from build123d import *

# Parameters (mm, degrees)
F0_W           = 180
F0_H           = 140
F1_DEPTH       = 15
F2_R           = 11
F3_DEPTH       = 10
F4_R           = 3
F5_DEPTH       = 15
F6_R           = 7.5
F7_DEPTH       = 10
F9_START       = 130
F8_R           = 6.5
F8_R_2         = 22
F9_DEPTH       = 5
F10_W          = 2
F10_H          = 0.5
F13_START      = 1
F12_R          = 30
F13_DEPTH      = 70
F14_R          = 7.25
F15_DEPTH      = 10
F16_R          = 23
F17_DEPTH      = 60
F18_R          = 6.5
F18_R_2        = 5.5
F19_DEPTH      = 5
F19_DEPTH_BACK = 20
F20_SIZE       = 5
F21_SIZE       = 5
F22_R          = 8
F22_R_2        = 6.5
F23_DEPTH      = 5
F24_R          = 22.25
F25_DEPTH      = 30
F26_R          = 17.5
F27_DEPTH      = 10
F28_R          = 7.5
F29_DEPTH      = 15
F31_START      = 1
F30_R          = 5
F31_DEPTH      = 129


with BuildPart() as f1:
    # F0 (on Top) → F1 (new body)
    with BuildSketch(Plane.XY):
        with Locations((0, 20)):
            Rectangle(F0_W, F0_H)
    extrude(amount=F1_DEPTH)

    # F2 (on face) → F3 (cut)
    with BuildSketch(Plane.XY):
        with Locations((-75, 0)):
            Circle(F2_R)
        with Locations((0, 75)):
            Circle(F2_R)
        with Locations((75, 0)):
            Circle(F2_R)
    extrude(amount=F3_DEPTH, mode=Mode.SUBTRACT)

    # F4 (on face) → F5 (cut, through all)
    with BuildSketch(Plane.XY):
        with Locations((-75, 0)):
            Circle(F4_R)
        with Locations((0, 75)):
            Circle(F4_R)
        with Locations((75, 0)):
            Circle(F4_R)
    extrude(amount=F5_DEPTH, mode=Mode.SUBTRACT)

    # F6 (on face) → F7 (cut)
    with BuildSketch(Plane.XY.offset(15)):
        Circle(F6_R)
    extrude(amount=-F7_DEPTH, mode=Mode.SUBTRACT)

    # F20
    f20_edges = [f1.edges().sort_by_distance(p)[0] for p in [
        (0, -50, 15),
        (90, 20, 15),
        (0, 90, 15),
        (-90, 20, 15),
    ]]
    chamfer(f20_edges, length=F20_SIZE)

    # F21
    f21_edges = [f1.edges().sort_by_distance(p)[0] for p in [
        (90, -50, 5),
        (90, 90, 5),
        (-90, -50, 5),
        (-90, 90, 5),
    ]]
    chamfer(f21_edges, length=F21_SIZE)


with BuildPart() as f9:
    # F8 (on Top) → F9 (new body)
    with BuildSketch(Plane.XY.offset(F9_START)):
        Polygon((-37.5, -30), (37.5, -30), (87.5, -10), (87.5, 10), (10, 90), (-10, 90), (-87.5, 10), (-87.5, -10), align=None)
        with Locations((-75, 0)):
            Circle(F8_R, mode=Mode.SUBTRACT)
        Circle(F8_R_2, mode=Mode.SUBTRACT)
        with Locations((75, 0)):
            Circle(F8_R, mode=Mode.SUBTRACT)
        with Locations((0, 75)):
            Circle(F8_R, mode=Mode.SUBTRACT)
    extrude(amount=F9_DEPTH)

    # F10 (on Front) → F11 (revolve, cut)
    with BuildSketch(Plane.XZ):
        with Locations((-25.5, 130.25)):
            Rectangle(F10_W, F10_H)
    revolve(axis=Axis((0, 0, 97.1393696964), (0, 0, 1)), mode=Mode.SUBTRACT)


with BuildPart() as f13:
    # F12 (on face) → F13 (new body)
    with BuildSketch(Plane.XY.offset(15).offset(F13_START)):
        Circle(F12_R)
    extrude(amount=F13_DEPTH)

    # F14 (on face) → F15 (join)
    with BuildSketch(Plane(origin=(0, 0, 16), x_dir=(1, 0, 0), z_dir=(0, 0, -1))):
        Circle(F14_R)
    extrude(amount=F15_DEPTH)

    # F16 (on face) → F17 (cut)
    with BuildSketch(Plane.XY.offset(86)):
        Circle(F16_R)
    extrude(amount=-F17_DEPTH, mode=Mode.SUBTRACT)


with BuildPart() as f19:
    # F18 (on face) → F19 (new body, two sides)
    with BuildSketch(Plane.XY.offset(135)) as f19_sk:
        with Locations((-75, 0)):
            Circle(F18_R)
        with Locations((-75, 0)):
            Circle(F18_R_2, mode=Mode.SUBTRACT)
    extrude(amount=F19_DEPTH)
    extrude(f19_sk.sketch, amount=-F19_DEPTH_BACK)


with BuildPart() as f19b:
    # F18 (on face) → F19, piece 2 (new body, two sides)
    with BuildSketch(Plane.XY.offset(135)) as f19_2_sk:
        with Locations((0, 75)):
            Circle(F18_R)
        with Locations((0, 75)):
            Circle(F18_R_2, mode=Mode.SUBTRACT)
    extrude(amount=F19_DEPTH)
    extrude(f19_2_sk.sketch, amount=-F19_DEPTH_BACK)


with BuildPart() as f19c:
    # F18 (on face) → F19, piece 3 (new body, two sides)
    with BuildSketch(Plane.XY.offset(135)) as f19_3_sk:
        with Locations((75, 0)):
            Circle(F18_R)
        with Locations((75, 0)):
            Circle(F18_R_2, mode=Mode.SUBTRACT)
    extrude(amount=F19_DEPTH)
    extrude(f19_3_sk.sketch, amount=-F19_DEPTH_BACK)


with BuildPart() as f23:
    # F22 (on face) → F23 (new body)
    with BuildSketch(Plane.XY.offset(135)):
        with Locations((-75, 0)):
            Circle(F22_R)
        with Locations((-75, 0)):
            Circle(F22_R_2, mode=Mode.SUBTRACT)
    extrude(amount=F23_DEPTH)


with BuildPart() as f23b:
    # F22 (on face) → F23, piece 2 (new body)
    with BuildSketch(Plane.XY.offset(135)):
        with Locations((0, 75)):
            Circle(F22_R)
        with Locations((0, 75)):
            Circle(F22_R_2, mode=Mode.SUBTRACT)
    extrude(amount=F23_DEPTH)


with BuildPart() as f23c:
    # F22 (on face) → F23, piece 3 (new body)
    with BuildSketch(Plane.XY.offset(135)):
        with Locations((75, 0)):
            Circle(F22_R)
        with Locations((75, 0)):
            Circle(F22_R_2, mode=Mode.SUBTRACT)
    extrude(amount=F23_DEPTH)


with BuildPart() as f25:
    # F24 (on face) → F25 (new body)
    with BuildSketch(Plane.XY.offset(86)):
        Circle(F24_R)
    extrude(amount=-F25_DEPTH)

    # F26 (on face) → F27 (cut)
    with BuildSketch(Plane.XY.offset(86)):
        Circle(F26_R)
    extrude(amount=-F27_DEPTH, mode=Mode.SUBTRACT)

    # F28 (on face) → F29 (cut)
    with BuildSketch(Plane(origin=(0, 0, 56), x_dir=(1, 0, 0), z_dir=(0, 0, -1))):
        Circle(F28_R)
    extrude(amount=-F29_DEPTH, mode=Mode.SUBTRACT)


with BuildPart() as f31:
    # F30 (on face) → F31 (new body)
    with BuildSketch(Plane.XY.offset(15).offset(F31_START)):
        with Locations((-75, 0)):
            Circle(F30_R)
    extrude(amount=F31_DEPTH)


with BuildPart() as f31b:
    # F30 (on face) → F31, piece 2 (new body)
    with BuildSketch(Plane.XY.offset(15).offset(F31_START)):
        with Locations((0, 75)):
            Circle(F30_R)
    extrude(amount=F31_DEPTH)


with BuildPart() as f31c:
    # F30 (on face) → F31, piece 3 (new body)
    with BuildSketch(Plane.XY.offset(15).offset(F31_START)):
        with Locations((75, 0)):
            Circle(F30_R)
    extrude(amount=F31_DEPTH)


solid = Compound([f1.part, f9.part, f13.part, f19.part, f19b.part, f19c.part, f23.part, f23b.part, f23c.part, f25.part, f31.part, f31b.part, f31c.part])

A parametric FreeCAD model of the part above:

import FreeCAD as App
import Part
import Sketcher

V = App.Vector


def edges_at(feature, points):
    """Names of the edges that pass closest to the given points."""
    edges = feature.Shape.Edges
    near = lambda p: min(range(len(edges)), key=lambda i: edges[i].distToShape(Part.Vertex(*p))[0])
    return sorted({f"Edge{near(p) + 1}" for p in points})


def add_polygon(sketch, points):
    """Adds a closed chain of lines whose ends are joined by coincident constraints."""
    first, n = sketch.GeometryCount, len(points)
    for a, b in zip(points, points[1:] + points[:1]):
        sketch.addGeometry(Part.LineSegment(App.Vector(*a, 0), App.Vector(*b, 0)), False)
    for i in range(n):
        sketch.addConstraint(Sketcher.Constraint("Coincident", first + i, 2, first + (i + 1) % n, 1))

doc = App.newDocument("Part")
body = doc.addObject("PartDesign::Body", "Body")

sketch1 = doc.addObject("Sketcher::SketchObject", "Sketch")
body.addObject(sketch1)
sketch1.AttachmentSupport = (doc.XY_Plane, [""])
sketch1.MapMode = "FlatFace"
add_polygon(sketch1, [(-90, 90), (-90, -50), (90, -50), (90, 90)])
sketch1.addConstraint([
    Sketcher.Constraint("Vertical", 0),
    Sketcher.Constraint("Horizontal", 1),
    Sketcher.Constraint("Vertical", 2),
    Sketcher.Constraint("Horizontal", 3),
    Sketcher.Constraint("DistanceX", 1, 1, 1, 2, 180.0),
    Sketcher.Constraint("DistanceY", 0, 2, 0, 1, 140.0),
    Sketcher.Constraint("DistanceX", 0, 2, -1, 1, 90.0),
    Sketcher.Constraint("DistanceY", 0, 2, -1, 1, 50.0),
])
pad1 = doc.addObject("PartDesign::Pad", "Pad")
body.addObject(pad1)
pad1.Profile = sketch1
pad1.Length = 15

sketch2 = doc.addObject("Sketcher::SketchObject", "Sketch001")
body.addObject(sketch2)
sketch2.AttachmentSupport = (doc.XY_Plane, [""])
sketch2.MapMode = "FlatFace"
sketch2.addGeometry([
    Part.Circle(V(-75, 0, 0), V(0, 0, 1), 11),
    Part.Circle(V(0, 75, 0), V(0, 0, 1), 11),
    Part.Circle(V(75, 0, 0), V(0, 0, 1), 11),
], False)
sketch2.addConstraint([
    Sketcher.Constraint("Equal", 0, 1),
    Sketcher.Constraint("Equal", 1, 2),
    Sketcher.Constraint("Symmetric", 0, 3, 2, 3, -1, 1),
    Sketcher.Constraint("PointOnObject", 0, 3, -1),
    Sketcher.Constraint("PointOnObject", 1, 3, -2),
    Sketcher.Constraint("Diameter", 0, 22.0),
    Sketcher.Constraint("DistanceX", 0, 3, -1, 1, 75.0),
    Sketcher.Constraint("DistanceY", -1, 1, 1, 3, 75.0),
])
pocket1 = doc.addObject("PartDesign::Pocket", "Pocket")
body.addObject(pocket1)
pocket1.Profile = sketch2
pocket1.Length = 10
pocket1.Reversed = True

sketch3 = doc.addObject("Sketcher::SketchObject", "Sketch002")
body.addObject(sketch3)
sketch3.AttachmentSupport = (doc.XY_Plane, [""])
sketch3.MapMode = "FlatFace"
sketch3.addGeometry([
    Part.Circle(V(-75, 0, 0), V(0, 0, 1), 3),
    Part.Circle(V(0, 75, 0), V(0, 0, 1), 3),
    Part.Circle(V(75, 0, 0), V(0, 0, 1), 3),
], False)
sketch3.addConstraint([
    Sketcher.Constraint("Equal", 0, 1),
    Sketcher.Constraint("Equal", 1, 2),
    Sketcher.Constraint("Symmetric", 0, 3, 2, 3, -1, 1),
    Sketcher.Constraint("PointOnObject", 0, 3, -1),
    Sketcher.Constraint("PointOnObject", 1, 3, -2),
    Sketcher.Constraint("Diameter", 0, 6.0),
    Sketcher.Constraint("DistanceX", 0, 3, -1, 1, 75.0),
    Sketcher.Constraint("DistanceY", -1, 1, 1, 3, 75.0),
])
pocket2 = doc.addObject("PartDesign::Pocket", "Pocket001")
body.addObject(pocket2)
pocket2.Profile = sketch3
pocket2.Type = "ThroughAll"
pocket2.Reversed = True

sketch4 = doc.addObject("Sketcher::SketchObject", "Sketch003")
body.addObject(sketch4)
sketch4.AttachmentSupport = (doc.XY_Plane, [""])
sketch4.MapMode = "FlatFace"
sketch4.AttachmentOffset = App.Placement(V(0, 0, 15), App.Rotation())
sketch4.addGeometry(Part.Circle(V(0, 0, 0), V(0, 0, 1), 7.5), False)
sketch4.addConstraint([
    Sketcher.Constraint("Coincident", 0, 3, -1, 1),
    Sketcher.Constraint("Diameter", 0, 15.0),
])
pocket3 = doc.addObject("PartDesign::Pocket", "Pocket002")
body.addObject(pocket3)
pocket3.Profile = sketch4
pocket3.Length = 10
doc.recompute()

chamfer = doc.addObject("PartDesign::Chamfer", "Chamfer")
body.addObject(chamfer)
chamfer.Base = (pocket3, edges_at(pocket3, [
    (0, -50, 15),
    (90, 20, 15),
    (0, 90, 15),
    (-90, 20, 15),
]))
chamfer.Size = 5
doc.recompute()

chamfer2 = doc.addObject("PartDesign::Chamfer", "Chamfer001")
body.addObject(chamfer2)
chamfer2.Base = (chamfer, edges_at(chamfer, [
    (90, -50, 5),
    (90, 90, 5),
    (-90, -50, 5),
    (-90, 90, 5),
]))
chamfer2.Size = 5
body2 = doc.addObject("PartDesign::Body", "Body001")

sketch5 = doc.addObject("Sketcher::SketchObject", "Sketch004")
body2.addObject(sketch5)
sketch5.AttachmentSupport = (doc.getObject("XY_Plane001"), [""])
sketch5.MapMode = "FlatFace"
sketch5.AttachmentOffset = App.Placement(V(0, 0, 130), App.Rotation())
add_polygon(sketch5, [(-37.5, -30), (37.5, -30), (87.5, -10), (87.5, 10), (10, 90), (-10, 90), (-87.5, 10), (-87.5, -10)])
sketch5.addGeometry(Part.Circle(V(-75, 0, 0), V(0, 0, 1), 6.5), False)
sketch5.addGeometry(Part.Circle(V(0, 0, 0), V(0, 0, 1), 22), False)
sketch5.addGeometry(Part.Circle(V(75, 0, 0), V(0, 0, 1), 6.5), False)
sketch5.addGeometry(Part.Circle(V(0, 75, 0), V(0, 0, 1), 6.5), False)
sketch5.addConstraint([
    Sketcher.Constraint("Horizontal", 0),
    Sketcher.Constraint("Vertical", 2),
    Sketcher.Constraint("Horizontal", 4),
    Sketcher.Constraint("Vertical", 6),
    Sketcher.Constraint("Coincident", 9, 3, -1, 1),
    Sketcher.Constraint("Equal", 8, 10),
    Sketcher.Constraint("Equal", 10, 11),
    Sketcher.Constraint("Symmetric", 8, 3, 10, 3, -1, 1),
    Sketcher.Constraint("Symmetric", 1, 2, 5, 2, -1, 1),
    Sketcher.Constraint("PointOnObject", 8, 3, -1),
    Sketcher.Constraint("PointOnObject", 11, 3, -2),
    Sketcher.Constraint("Horizontal", 2, 2, 5, 2),
    Sketcher.Constraint("Horizontal", 1, 2, 6, 2),
    Sketcher.Constraint("Equal", 4, 2),
    Sketcher.Constraint("Equal", 3, 5),
    Sketcher.Constraint("Equal", 1, 7),
    Sketcher.Constraint("Diameter", 8, 13.0),
    Sketcher.Constraint("Diameter", 9, 44.0),
    Sketcher.Constraint("DistanceX", 0, 1, 0, 2, 75.0),
    Sketcher.Constraint("DistanceX", 4, 2, 4, 1, 20.0),
    Sketcher.Constraint("DistanceX", 8, 3, -1, 1, 75.0),
    Sketcher.Constraint("DistanceY", -1, 1, 11, 3, 75.0),
    Sketcher.Constraint("DistanceY", 0, 2, -1, 1, 30.0),
    Sketcher.Constraint("DistanceY", -1, 1, 3, 2, 90.0),
    Sketcher.Constraint("DistanceX", 0, 2, 1, 2, 50.0),
])
pad2 = doc.addObject("PartDesign::Pad", "Pad001")
body2.addObject(pad2)
pad2.Profile = sketch5
pad2.Length = 5

sketch6 = doc.addObject("Sketcher::SketchObject", "Sketch005")
body2.addObject(sketch6)
sketch6.AttachmentSupport = (doc.getObject("XZ_Plane001"), [""])
sketch6.MapMode = "FlatFace"
add_polygon(sketch6, [(-26.5, 130.5), (-26.5, 130), (-24.5, 130), (-24.5, 130.5)])
sketch6.addConstraint([
    Sketcher.Constraint("Vertical", 0),
    Sketcher.Constraint("Horizontal", 1),
    Sketcher.Constraint("Vertical", 2),
    Sketcher.Constraint("Horizontal", 3),
    Sketcher.Constraint("DistanceX", 1, 1, 1, 2, 2.0),
    Sketcher.Constraint("DistanceY", 0, 2, 0, 1, 0.5),
    Sketcher.Constraint("DistanceY", -1, 1, 0, 2, 130.0),
    Sketcher.Constraint("DistanceX", 0, 2, -1, 1, 26.5),
])
groove = doc.addObject("PartDesign::Groove", "Groove")
body2.addObject(groove)
groove.Profile = sketch6
groove.ReferenceAxis = (sketch6, ["V_Axis"])
groove.Angle = 360
body3 = doc.addObject("PartDesign::Body", "Body002")

sketch7 = doc.addObject("Sketcher::SketchObject", "Sketch006")
body3.addObject(sketch7)
sketch7.AttachmentSupport = (doc.getObject("XY_Plane002"), [""])
sketch7.MapMode = "FlatFace"
sketch7.AttachmentOffset = App.Placement(V(0, 0, 16), App.Rotation())
sketch7.addGeometry(Part.Circle(V(0, 0, 0), V(0, 0, 1), 30), False)
sketch7.addConstraint([
    Sketcher.Constraint("Coincident", 0, 3, -1, 1),
    Sketcher.Constraint("Diameter", 0, 60.0),
])
pad3 = doc.addObject("PartDesign::Pad", "Pad002")
body3.addObject(pad3)
pad3.Profile = sketch7
pad3.Length = 70

sketch8 = doc.addObject("Sketcher::SketchObject", "Sketch007")
body3.addObject(sketch8)
sketch8.AttachmentSupport = (doc.getObject("XY_Plane002"), [""])
sketch8.MapMode = "FlatFace"
sketch8.AttachmentOffset = App.Placement(V(0, 0, 16), App.Rotation())
sketch8.addGeometry(Part.Circle(V(0, 0, 0), V(0, 0, 1), 7.25), False)
sketch8.addConstraint([
    Sketcher.Constraint("Coincident", 0, 3, -1, 1),
    Sketcher.Constraint("Diameter", 0, 14.5),
])
pad4 = doc.addObject("PartDesign::Pad", "Pad003")
body3.addObject(pad4)
pad4.Profile = sketch8
pad4.Length = 10
pad4.Reversed = True

sketch9 = doc.addObject("Sketcher::SketchObject", "Sketch008")
body3.addObject(sketch9)
sketch9.AttachmentSupport = (doc.getObject("XY_Plane002"), [""])
sketch9.MapMode = "FlatFace"
sketch9.AttachmentOffset = App.Placement(V(0, 0, 86), App.Rotation())
sketch9.addGeometry(Part.Circle(V(0, 0, 0), V(0, 0, 1), 23), False)
sketch9.addConstraint([
    Sketcher.Constraint("Coincident", 0, 3, -1, 1),
    Sketcher.Constraint("Diameter", 0, 46.0),
])
pocket4 = doc.addObject("PartDesign::Pocket", "Pocket003")
body3.addObject(pocket4)
pocket4.Profile = sketch9
pocket4.Length = 60
body4 = doc.addObject("PartDesign::Body", "Body003")

sketch10 = doc.addObject("Sketcher::SketchObject", "Sketch009")
body4.addObject(sketch10)
sketch10.AttachmentSupport = (doc.getObject("XY_Plane003"), [""])
sketch10.MapMode = "FlatFace"
sketch10.AttachmentOffset = App.Placement(V(0, 0, 135), App.Rotation())
sketch10.addGeometry([
    Part.Circle(V(-75, 0, 0), V(0, 0, 1), 6.5),
    Part.Circle(V(-75, 0, 0), V(0, 0, 1), 5.5),
], False)
sketch10.addConstraint([
    Sketcher.Constraint("Coincident", 1, 3, 0, 3),
    Sketcher.Constraint("PointOnObject", 0, 3, -1),
    Sketcher.Constraint("Diameter", 0, 13.0),
    Sketcher.Constraint("Diameter", 1, 11.0),
    Sketcher.Constraint("DistanceX", 0, 3, -1, 1, 75.0),
])
pad5 = doc.addObject("PartDesign::Pad", "Pad004")
body4.addObject(pad5)
pad5.Profile = sketch10
pad5.Type = "TwoLengths"
pad5.Length = 5
pad5.Length2 = 20
body5 = doc.addObject("PartDesign::Body", "Body004")

sketch11 = doc.addObject("Sketcher::SketchObject", "Sketch010")
body5.addObject(sketch11)
sketch11.AttachmentSupport = (doc.getObject("XY_Plane004"), [""])
sketch11.MapMode = "FlatFace"
sketch11.AttachmentOffset = App.Placement(V(0, 0, 135), App.Rotation())
sketch11.addGeometry([
    Part.Circle(V(0, 75, 0), V(0, 0, 1), 6.5),
    Part.Circle(V(0, 75, 0), V(0, 0, 1), 5.5),
], False)
sketch11.addConstraint([
    Sketcher.Constraint("Coincident", 1, 3, 0, 3),
    Sketcher.Constraint("PointOnObject", 0, 3, -2),
    Sketcher.Constraint("Diameter", 0, 13.0),
    Sketcher.Constraint("Diameter", 1, 11.0),
    Sketcher.Constraint("DistanceY", -1, 1, 0, 3, 75.0),
])
pad6 = doc.addObject("PartDesign::Pad", "Pad005")
body5.addObject(pad6)
pad6.Profile = sketch11
pad6.Type = "TwoLengths"
pad6.Length = 5
pad6.Length2 = 20
body6 = doc.addObject("PartDesign::Body", "Body005")

sketch12 = doc.addObject("Sketcher::SketchObject", "Sketch011")
body6.addObject(sketch12)
sketch12.AttachmentSupport = (doc.getObject("XY_Plane005"), [""])
sketch12.MapMode = "FlatFace"
sketch12.AttachmentOffset = App.Placement(V(0, 0, 135), App.Rotation())
sketch12.addGeometry([
    Part.Circle(V(75, 0, 0), V(0, 0, 1), 6.5),
    Part.Circle(V(75, 0, 0), V(0, 0, 1), 5.5),
], False)
sketch12.addConstraint([
    Sketcher.Constraint("Coincident", 1, 3, 0, 3),
    Sketcher.Constraint("PointOnObject", 0, 3, -1),
    Sketcher.Constraint("Diameter", 0, 13.0),
    Sketcher.Constraint("Diameter", 1, 11.0),
    Sketcher.Constraint("DistanceX", -1, 1, 0, 3, 75.0),
])
pad7 = doc.addObject("PartDesign::Pad", "Pad006")
body6.addObject(pad7)
pad7.Profile = sketch12
pad7.Type = "TwoLengths"
pad7.Length = 5
pad7.Length2 = 20
body7 = doc.addObject("PartDesign::Body", "Body006")

sketch13 = doc.addObject("Sketcher::SketchObject", "Sketch012")
body7.addObject(sketch13)
sketch13.AttachmentSupport = (doc.getObject("XY_Plane006"), [""])
sketch13.MapMode = "FlatFace"
sketch13.AttachmentOffset = App.Placement(V(0, 0, 135), App.Rotation())
sketch13.addGeometry([
    Part.Circle(V(-75, 0, 0), V(0, 0, 1), 8),
    Part.Circle(V(-75, 0, 0), V(0, 0, 1), 6.5),
], False)
sketch13.addConstraint([
    Sketcher.Constraint("Coincident", 1, 3, 0, 3),
    Sketcher.Constraint("PointOnObject", 0, 3, -1),
    Sketcher.Constraint("Diameter", 0, 16.0),
    Sketcher.Constraint("Diameter", 1, 13.0),
    Sketcher.Constraint("DistanceX", 0, 3, -1, 1, 75.0),
])
pad8 = doc.addObject("PartDesign::Pad", "Pad007")
body7.addObject(pad8)
pad8.Profile = sketch13
pad8.Length = 5
body8 = doc.addObject("PartDesign::Body", "Body007")

sketch14 = doc.addObject("Sketcher::SketchObject", "Sketch013")
body8.addObject(sketch14)
sketch14.AttachmentSupport = (doc.getObject("XY_Plane007"), [""])
sketch14.MapMode = "FlatFace"
sketch14.AttachmentOffset = App.Placement(V(0, 0, 135), App.Rotation())
sketch14.addGeometry([
    Part.Circle(V(0, 75, 0), V(0, 0, 1), 8),
    Part.Circle(V(0, 75, 0), V(0, 0, 1), 6.5),
], False)
sketch14.addConstraint([
    Sketcher.Constraint("Coincident", 1, 3, 0, 3),
    Sketcher.Constraint("PointOnObject", 0, 3, -2),
    Sketcher.Constraint("Diameter", 0, 16.0),
    Sketcher.Constraint("Diameter", 1, 13.0),
    Sketcher.Constraint("DistanceY", -1, 1, 0, 3, 75.0),
])
pad9 = doc.addObject("PartDesign::Pad", "Pad008")
body8.addObject(pad9)
pad9.Profile = sketch14
pad9.Length = 5
body9 = doc.addObject("PartDesign::Body", "Body008")

sketch15 = doc.addObject("Sketcher::SketchObject", "Sketch014")
body9.addObject(sketch15)
sketch15.AttachmentSupport = (doc.getObject("XY_Plane008"), [""])
sketch15.MapMode = "FlatFace"
sketch15.AttachmentOffset = App.Placement(V(0, 0, 135), App.Rotation())
sketch15.addGeometry([
    Part.Circle(V(75, 0, 0), V(0, 0, 1), 8),
    Part.Circle(V(75, 0, 0), V(0, 0, 1), 6.5),
], False)
sketch15.addConstraint([
    Sketcher.Constraint("Coincident", 1, 3, 0, 3),
    Sketcher.Constraint("PointOnObject", 0, 3, -1),
    Sketcher.Constraint("Diameter", 0, 16.0),
    Sketcher.Constraint("Diameter", 1, 13.0),
    Sketcher.Constraint("DistanceX", -1, 1, 0, 3, 75.0),
])
pad10 = doc.addObject("PartDesign::Pad", "Pad009")
body9.addObject(pad10)
pad10.Profile = sketch15
pad10.Length = 5
body10 = doc.addObject("PartDesign::Body", "Body009")

sketch16 = doc.addObject("Sketcher::SketchObject", "Sketch015")
body10.addObject(sketch16)
sketch16.AttachmentSupport = (doc.getObject("XY_Plane009"), [""])
sketch16.MapMode = "FlatFace"
sketch16.AttachmentOffset = App.Placement(V(0, 0, 86), App.Rotation())
sketch16.addGeometry(Part.Circle(V(0, 0, 0), V(0, 0, 1), 22.25), False)
sketch16.addConstraint([
    Sketcher.Constraint("Coincident", 0, 3, -1, 1),
    Sketcher.Constraint("Diameter", 0, 44.5),
])
pad11 = doc.addObject("PartDesign::Pad", "Pad010")
body10.addObject(pad11)
pad11.Profile = sketch16
pad11.Length = 30
pad11.Reversed = True

sketch17 = doc.addObject("Sketcher::SketchObject", "Sketch016")
body10.addObject(sketch17)
sketch17.AttachmentSupport = (doc.getObject("XY_Plane009"), [""])
sketch17.MapMode = "FlatFace"
sketch17.AttachmentOffset = App.Placement(V(0, 0, 86), App.Rotation())
sketch17.addGeometry(Part.Circle(V(0, 0, 0), V(0, 0, 1), 17.5), False)
sketch17.addConstraint([
    Sketcher.Constraint("Coincident", 0, 3, -1, 1),
    Sketcher.Constraint("Diameter", 0, 35.0),
])
pocket5 = doc.addObject("PartDesign::Pocket", "Pocket004")
body10.addObject(pocket5)
pocket5.Profile = sketch17
pocket5.Length = 10

sketch18 = doc.addObject("Sketcher::SketchObject", "Sketch017")
body10.addObject(sketch18)
sketch18.AttachmentSupport = (doc.getObject("XY_Plane009"), [""])
sketch18.MapMode = "FlatFace"
sketch18.AttachmentOffset = App.Placement(V(0, 0, 56), App.Rotation())
sketch18.addGeometry(Part.Circle(V(0, 0, 0), V(0, 0, 1), 7.5), False)
sketch18.addConstraint([
    Sketcher.Constraint("Coincident", 0, 3, -1, 1),
    Sketcher.Constraint("Diameter", 0, 15.0),
])
pocket6 = doc.addObject("PartDesign::Pocket", "Pocket005")
body10.addObject(pocket6)
pocket6.Profile = sketch18
pocket6.Length = 15
pocket6.Reversed = True
body11 = doc.addObject("PartDesign::Body", "Body010")

sketch19 = doc.addObject("Sketcher::SketchObject", "Sketch018")
body11.addObject(sketch19)
sketch19.AttachmentSupport = (doc.getObject("XY_Plane010"), [""])
sketch19.MapMode = "FlatFace"
sketch19.AttachmentOffset = App.Placement(V(0, 0, 16), App.Rotation())
sketch19.addGeometry(Part.Circle(V(-75, 0, 0), V(0, 0, 1), 5), False)
sketch19.addConstraint([
    Sketcher.Constraint("PointOnObject", 0, 3, -1),
    Sketcher.Constraint("Diameter", 0, 10.0),
    Sketcher.Constraint("DistanceX", 0, 3, -1, 1, 75.0),
])
pad12 = doc.addObject("PartDesign::Pad", "Pad011")
body11.addObject(pad12)
pad12.Profile = sketch19
pad12.Length = 129
body12 = doc.addObject("PartDesign::Body", "Body011")

sketch20 = doc.addObject("Sketcher::SketchObject", "Sketch019")
body12.addObject(sketch20)
sketch20.AttachmentSupport = (doc.getObject("XY_Plane011"), [""])
sketch20.MapMode = "FlatFace"
sketch20.AttachmentOffset = App.Placement(V(0, 0, 16), App.Rotation())
sketch20.addGeometry(Part.Circle(V(0, 75, 0), V(0, 0, 1), 5), False)
sketch20.addConstraint([
    Sketcher.Constraint("PointOnObject", 0, 3, -2),
    Sketcher.Constraint("Diameter", 0, 10.0),
    Sketcher.Constraint("DistanceY", -1, 1, 0, 3, 75.0),
])
pad13 = doc.addObject("PartDesign::Pad", "Pad012")
body12.addObject(pad13)
pad13.Profile = sketch20
pad13.Length = 129
body13 = doc.addObject("PartDesign::Body", "Body012")

sketch21 = doc.addObject("Sketcher::SketchObject", "Sketch020")
body13.addObject(sketch21)
sketch21.AttachmentSupport = (doc.getObject("XY_Plane012"), [""])
sketch21.MapMode = "FlatFace"
sketch21.AttachmentOffset = App.Placement(V(0, 0, 16), App.Rotation())
sketch21.addGeometry(Part.Circle(V(75, 0, 0), V(0, 0, 1), 5), False)
sketch21.addConstraint([
    Sketcher.Constraint("PointOnObject", 0, 3, -1),
    Sketcher.Constraint("Diameter", 0, 10.0),
    Sketcher.Constraint("DistanceX", -1, 1, 0, 3, 75.0),
])
pad14 = doc.addObject("PartDesign::Pad", "Pad013")
body13.addObject(pad14)
pad14.Profile = sketch21
pad14.Length = 129

doc.recompute()
